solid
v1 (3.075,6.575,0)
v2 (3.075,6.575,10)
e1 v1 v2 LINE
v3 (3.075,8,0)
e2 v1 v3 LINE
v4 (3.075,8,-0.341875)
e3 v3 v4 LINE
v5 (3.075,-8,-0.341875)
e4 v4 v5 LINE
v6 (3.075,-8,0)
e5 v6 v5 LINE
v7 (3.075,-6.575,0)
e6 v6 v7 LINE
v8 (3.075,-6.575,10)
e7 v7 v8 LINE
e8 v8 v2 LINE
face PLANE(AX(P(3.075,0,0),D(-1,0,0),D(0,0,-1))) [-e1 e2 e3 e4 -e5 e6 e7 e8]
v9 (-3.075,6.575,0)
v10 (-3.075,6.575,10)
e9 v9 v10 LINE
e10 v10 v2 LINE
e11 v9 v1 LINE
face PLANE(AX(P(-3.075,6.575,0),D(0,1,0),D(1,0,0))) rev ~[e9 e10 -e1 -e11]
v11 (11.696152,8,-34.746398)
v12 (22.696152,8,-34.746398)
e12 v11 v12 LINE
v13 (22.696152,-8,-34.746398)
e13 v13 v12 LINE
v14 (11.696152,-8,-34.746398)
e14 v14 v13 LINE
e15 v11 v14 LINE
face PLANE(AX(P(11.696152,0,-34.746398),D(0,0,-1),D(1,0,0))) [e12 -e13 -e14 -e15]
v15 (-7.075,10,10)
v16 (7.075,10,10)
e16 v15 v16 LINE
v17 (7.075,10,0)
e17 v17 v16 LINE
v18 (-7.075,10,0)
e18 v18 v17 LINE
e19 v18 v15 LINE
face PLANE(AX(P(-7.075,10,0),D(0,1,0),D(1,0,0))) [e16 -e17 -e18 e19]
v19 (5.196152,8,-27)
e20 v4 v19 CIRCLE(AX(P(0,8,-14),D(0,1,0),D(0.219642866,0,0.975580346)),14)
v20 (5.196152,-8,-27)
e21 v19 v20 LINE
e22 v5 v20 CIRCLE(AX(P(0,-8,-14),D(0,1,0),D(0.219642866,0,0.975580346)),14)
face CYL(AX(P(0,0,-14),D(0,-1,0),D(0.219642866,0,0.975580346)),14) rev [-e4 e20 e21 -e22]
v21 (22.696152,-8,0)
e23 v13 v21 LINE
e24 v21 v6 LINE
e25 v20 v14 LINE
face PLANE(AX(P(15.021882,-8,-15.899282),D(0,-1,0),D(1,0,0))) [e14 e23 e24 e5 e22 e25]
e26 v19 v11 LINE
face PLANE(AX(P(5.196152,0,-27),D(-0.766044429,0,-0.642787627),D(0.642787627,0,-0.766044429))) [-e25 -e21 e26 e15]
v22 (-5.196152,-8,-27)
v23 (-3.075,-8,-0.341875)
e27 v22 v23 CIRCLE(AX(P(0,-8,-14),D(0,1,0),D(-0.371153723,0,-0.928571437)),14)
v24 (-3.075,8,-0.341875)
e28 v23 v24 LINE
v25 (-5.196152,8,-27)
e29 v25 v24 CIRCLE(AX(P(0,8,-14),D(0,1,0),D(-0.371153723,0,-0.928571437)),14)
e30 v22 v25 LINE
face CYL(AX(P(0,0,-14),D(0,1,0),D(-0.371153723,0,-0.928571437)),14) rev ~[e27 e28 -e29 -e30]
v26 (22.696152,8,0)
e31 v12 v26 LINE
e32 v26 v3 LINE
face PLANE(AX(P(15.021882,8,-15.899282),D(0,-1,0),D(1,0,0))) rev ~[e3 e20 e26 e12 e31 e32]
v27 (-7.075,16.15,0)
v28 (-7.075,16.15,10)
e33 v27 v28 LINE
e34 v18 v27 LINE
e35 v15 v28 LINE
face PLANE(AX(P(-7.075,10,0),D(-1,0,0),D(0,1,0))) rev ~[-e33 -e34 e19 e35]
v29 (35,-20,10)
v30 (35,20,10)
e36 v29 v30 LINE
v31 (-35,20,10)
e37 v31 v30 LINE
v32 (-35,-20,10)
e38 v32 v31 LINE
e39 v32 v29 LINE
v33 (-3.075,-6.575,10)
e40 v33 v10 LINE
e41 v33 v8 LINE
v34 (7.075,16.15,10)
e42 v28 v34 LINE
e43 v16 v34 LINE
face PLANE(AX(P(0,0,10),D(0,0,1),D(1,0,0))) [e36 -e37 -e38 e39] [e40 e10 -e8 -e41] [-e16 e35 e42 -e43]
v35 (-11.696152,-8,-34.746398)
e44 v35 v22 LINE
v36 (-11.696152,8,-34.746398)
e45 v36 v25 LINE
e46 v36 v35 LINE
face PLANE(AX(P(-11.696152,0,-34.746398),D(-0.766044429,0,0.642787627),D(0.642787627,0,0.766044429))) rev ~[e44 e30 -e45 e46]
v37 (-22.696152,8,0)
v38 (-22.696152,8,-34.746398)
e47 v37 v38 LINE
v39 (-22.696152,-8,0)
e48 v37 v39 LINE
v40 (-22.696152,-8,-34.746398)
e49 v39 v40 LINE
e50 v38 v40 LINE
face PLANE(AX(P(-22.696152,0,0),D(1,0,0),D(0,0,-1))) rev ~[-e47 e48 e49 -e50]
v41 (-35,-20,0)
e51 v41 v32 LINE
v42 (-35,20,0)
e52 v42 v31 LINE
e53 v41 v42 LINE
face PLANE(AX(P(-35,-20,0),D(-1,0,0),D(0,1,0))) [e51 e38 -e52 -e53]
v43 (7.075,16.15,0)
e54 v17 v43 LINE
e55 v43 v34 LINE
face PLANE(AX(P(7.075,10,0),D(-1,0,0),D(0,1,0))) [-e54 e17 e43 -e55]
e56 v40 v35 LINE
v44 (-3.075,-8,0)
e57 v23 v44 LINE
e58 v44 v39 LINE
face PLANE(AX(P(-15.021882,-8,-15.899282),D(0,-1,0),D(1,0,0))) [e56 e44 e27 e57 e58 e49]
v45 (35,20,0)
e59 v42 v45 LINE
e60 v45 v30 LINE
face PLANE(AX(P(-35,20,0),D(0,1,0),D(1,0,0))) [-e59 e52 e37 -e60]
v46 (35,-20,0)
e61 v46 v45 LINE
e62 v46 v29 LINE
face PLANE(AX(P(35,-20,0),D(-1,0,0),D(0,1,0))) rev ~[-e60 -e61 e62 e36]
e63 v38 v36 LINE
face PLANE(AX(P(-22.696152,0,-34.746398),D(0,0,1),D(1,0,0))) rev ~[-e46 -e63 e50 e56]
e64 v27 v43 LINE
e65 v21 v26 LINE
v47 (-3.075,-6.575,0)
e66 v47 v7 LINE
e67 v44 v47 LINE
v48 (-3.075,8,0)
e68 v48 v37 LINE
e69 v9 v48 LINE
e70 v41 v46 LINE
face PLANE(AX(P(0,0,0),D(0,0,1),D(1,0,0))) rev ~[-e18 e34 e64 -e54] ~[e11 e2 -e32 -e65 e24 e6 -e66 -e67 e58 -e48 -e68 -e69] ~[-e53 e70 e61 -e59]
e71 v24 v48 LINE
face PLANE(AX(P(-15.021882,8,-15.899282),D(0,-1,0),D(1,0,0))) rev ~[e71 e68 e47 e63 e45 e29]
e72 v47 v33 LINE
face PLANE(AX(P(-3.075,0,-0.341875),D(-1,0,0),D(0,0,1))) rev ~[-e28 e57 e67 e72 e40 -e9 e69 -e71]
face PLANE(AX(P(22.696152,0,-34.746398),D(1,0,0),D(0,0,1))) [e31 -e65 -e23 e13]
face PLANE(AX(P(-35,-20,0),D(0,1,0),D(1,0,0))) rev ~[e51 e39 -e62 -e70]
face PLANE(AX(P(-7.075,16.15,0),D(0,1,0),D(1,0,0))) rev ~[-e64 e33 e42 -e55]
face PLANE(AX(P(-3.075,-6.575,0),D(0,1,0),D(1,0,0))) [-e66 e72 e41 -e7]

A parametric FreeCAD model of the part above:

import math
import FreeCAD as App
import Part
import Sketcher

V = App.Vector
Q = App.Units.Quantity

doc = App.newDocument("Part")
body = doc.addObject("PartDesign::Body", "Body")

# Sketch on XY plane
sketch1 = body.newObject("Sketcher::SketchObject", "Sketch")
sketch1.AttachmentSupport = (doc.getObject("XY_Plane"), [""])
sketch1.MapMode = "FlatFace"
sketch1.addGeometry(Part.LineSegment(V(-35, 20, 0), V(-35, -20, 0)), False)
sketch1.addGeometry(Part.LineSegment(V(-35, -20, 0), V(35, -20, 0)), False)
sketch1.addGeometry(Part.LineSegment(V(35, -20, 0), V(35, 20, 0)), False)
sketch1.addGeometry(Part.LineSegment(V(35, 20, 0), V(-35, 20, 0)), False)
sketch1.addGeometry(Part.LineSegment(V(3, -7, 0), V(-3, -7, 0)), False)
sketch1.addGeometry(Part.LineSegment(V(-3, -7, 0), V(-3, 7, 0)), False)
sketch1.addGeometry(Part.LineSegment(V(-3, 7, 0), V(3, 7, 0)), False)
sketch1.addGeometry(Part.LineSegment(V(3, 7, 0), V(3, -7, 0)), False)
sketch1.addGeometry(Part.LineSegment(V(7, 10, 0), V(-7, 10, 0)), False)
sketch1.addGeometry(Part.LineSegment(V(-7, 10, 0), V(-7, 16, 0)), False)
sketch1.addGeometry(Part.LineSegment(V(-7, 16, 0), V(7, 16, 0)), False)
sketch1.addGeometry(Part.LineSegment(V(7, 16, 0), V(7, 10, 0)), False)
sketch1.addConstraint(Sketcher.Constraint("Coincident", 0, 2, 1, 1))
sketch1.addConstraint(Sketcher.Constraint("Coincident", 1, 2, 2, 1))
sketch1.addConstraint(Sketcher.Constraint("Coincident", 2, 2, 3, 1))
sketch1.addConstraint(Sketcher.Constraint("Coincident", 3, 2, 0, 1))
sketch1.addConstraint(Sketcher.Constraint("Coincident", 4, 2, 5, 1))
sketch1.addConstraint(Sketcher.Constraint("Coincident", 5, 2, 6, 1))
sketch1.addConstraint(Sketcher.Constraint("Coincident", 6, 2, 7, 1))
sketch1.addConstraint(Sketcher.Constraint("Coincident", 7, 2, 4, 1))
sketch1.addConstraint(Sketcher.Constraint("Coincident", 8, 2, 9, 1))
sketch1.addConstraint(Sketcher.Constraint("Coincident", 9, 2, 10, 1))
sketch1.addConstraint(Sketcher.Constraint("Coincident", 10, 2, 11, 1))
sketch1.addConstraint(Sketcher.Constraint("Coincident", 11, 2, 8, 1))
sketch1.addConstraint(Sketcher.Constraint("Vertical", 0))
sketch1.addConstraint(Sketcher.Constraint("Horizontal", 1))
sketch1.addConstraint(Sketcher.Constraint("Vertical", 2))
sketch1.addConstraint(Sketcher.Constraint("Horizontal", 3))
sketch1.addConstraint(Sketcher.Constraint("Horizontal", 4))
sketch1.addConstraint(Sketcher.Constraint("Vertical", 5))
sketch1.addConstraint(Sketcher.Constraint("Horizontal", 6))
sketch1.addConstraint(Sketcher.Constraint("Vertical", 7))
sketch1.addConstraint(Sketcher.Constraint("Horizontal", 8))
sketch1.addConstraint(Sketcher.Constraint("Vertical", 9))
sketch1.addConstraint(Sketcher.Constraint("Horizontal", 10))
sketch1.addConstraint(Sketcher.Constraint("Vertical", 11))
sketch1.addConstraint(Sketcher.Constraint("Symmetric", 0, 2, 2, 2, -1, 1))
sketch1.addConstraint(Sketcher.Constraint("Symmetric", 4, 2, 6, 2, -1, 1))
sketch1.addConstraint(Sketcher.Constraint("Equal", 6, 9))
sketch1.addConstraint(Sketcher.Constraint("DistanceX", 1, 1, 1, 2, 70.0))
sketch1.addConstraint(Sketcher.Constraint("DistanceY", 0, 2, 0, 1, 40.0))
sketch1.addConstraint(Sketcher.Constraint("DistanceY", -1, 1, 8, 2, 10.0))
sketch1.addConstraint(Sketcher.Constraint("DistanceX", 8, 2, 5, 2, 4.0))
sketch1.addConstraint(Sketcher.Constraint("DistanceX", 6, 2, 10, 2, 4.0))
sketch1.addConstraint(Sketcher.Constraint("DistanceX", 4, 2, 4, 1, 6.15))
sketch1.addConstraint(Sketcher.Constraint("DistanceY", 5, 1, 5, 2, 13.15))
pad1 = body.newObject("PartDesign::Pad", "Pad")
pad1.Profile = sketch1
pad1.Length = 10

# Sketch on XZ plane
sketch2 = body.newObject("Sketcher::SketchObject", "Sketch001")
sketch2.AttachmentSupport = (doc.getObject("XZ_Plane"), [""])
sketch2.MapMode = "FlatFace"
sketch2.addGeometry(Part.LineSegment(V(-3.08, 0, 0), V(-22.7, 0, 0)), False)
sketch2.addGeometry(Part.LineSegment(V(-22.7, 0, 0), V(-22.7, -34.75, 0)), False)
sketch2.addGeometry(Part.LineSegment(V(-22.7, -34.75, 0), V(-11.7, -34.75, 0)), False)
sketch2.addGeometry(Part.LineSegment(V(-11.7, -34.75, 0), V(-5.2, -27, 0)), False)
sketch2.addGeometry(Part.ArcOfCircle(Part.Circle(V(0, -14, 0), V(0, 0, 1), 14), math.radians(103), math.radians(248)), False)
sketch2.addGeometry(Part.LineSegment(V(-3.08, -0.34, 0), V(-3.08, 0, 0)), False)
sketch2.addGeometry(Part.LineSegment(V(3.08, 0, 0), V(3.08, -0.34, 0)), False)
sketch2.addGeometry(Part.ArcOfCircle(Part.Circle(V(0, -14, 0), V(0, 0, 1), 14), math.radians(-68), math.radians(77)), False)
sketch2.addGeometry(Part.LineSegment(V(5.2, -27, 0), V(11.7, -34.75, 0)), False)
sketch2.addGeometry(Part.LineSegment(V(11.7, -34.75, 0), V(22.7, -34.75, 0)), False)
sketch2.addGeometry(Part.LineSegment(V(22.7, -34.75, 0), V(22.7, 0, 0)), False)
sketch2.addGeometry(Part.LineSegment(V(22.7, 0, 0), V(3.08, 0, 0)), False)
sketch2.addConstraint(Sketcher.Constraint("Coincident", 0, 2, 1, 1))
sketch2.addConstraint(Sketcher.Constraint("Coincident", 1, 2, 2, 1))
sketch2.addConstraint(Sketcher.Constraint("Coincident", 2, 2, 3, 1))
sketch2.addConstraint(Sketcher.Constraint("Coincident", 3, 2, 4, 2))
sketch2.addConstraint(Sketcher.Constraint("Coincident", 4, 1, 5, 1))
sketch2.addConstraint(Sketcher.Constraint("Coincident", 5, 2, 0, 1))
sketch2.addConstraint(Sketcher.Constraint("Coincident", 6, 2, 7, 2))
sketch2.addConstraint(Sketcher.Constraint("Coincident", 7, 1, 8, 1))
sketch2.addConstraint(Sketcher.Constraint("Coincident", 8, 2, 9, 1))
sketch2.addConstraint(Sketcher.Constraint("Coincident", 9, 2, 10, 1))
sketch2.addConstraint(Sketcher.Constraint("Coincident", 10, 2, 11, 1))
sketch2.addConstraint(Sketcher.Constraint("Coincident", 11, 2, 6, 1))
sketch2.addConstraint(Sketcher.Constraint("Horizontal", 0))
sketch2.addConstraint(Sketcher.Constraint("Vertical", 1))
sketch2.addConstraint(Sketcher.Constraint("Horizontal", 2))
sketch2.addConstraint(Sketcher.Constraint("Vertical", 5))
sketch2.addConstraint(Sketcher.Constraint("Vertical", 6))
sketch2.addConstraint(Sketcher.Constraint("Horizontal", 9))
sketch2.addConstraint(Sketcher.Constraint("Vertical", 10))
sketch2.addConstraint(Sketcher.Constraint("Horizontal", 11))
sketch2.addConstraint(Sketcher.Constraint("Coincident", 7, 3, 4, 3))
sketch2.addConstraint(Sketcher.Constraint("Equal", 4, 7))
sketch2.addConstraint(Sketcher.Constraint("Symmetric", 0, 2, 10, 2, -1, 1))
sketch2.addConstraint(Sketcher.Constraint("Symmetric", 4, 1, 6, 2, -2))
sketch2.addConstraint(Sketcher.Constraint("Symmetric", 2, 2, 8, 2, -2))
sketch2.addConstraint(Sketcher.Constraint("PointOnObject", 0, 2, -1))
sketch2.addConstraint(Sketcher.Constraint("Horizontal", 3, 2, 7, 1))
sketch2.addConstraint(Sketcher.Constraint("Radius", 4, 14.0))
sketch2.addConstraint(Sketcher.Constraint("DistanceX", 2, 1, 2, 2, 11.0))
sketch2.addConstraint(Sketcher.Constraint("Angle", 3, Q("49.999999 deg")))
sketch2.addConstraint(Sketcher.Constraint("DistanceY", 4, 3, -1, 1, 14.0))
sketch2.addConstraint(Sketcher.Constraint("DistanceY", 3, 2, -1, 1, 27.0))
sketch2.addConstraint(Sketcher.Constraint("DistanceX", 2, 2, 3, 2, 6.5))
sketch2.addConstraint(Sketcher.Constraint("DistanceX", 4, 1, 6, 2, 6.15))
pad2 = body.newObject("PartDesign::Pad", "Pad001")
pad2.Profile = sketch2
pad2.Length = 16
pad2.Midplane = True

doc.recompute()
